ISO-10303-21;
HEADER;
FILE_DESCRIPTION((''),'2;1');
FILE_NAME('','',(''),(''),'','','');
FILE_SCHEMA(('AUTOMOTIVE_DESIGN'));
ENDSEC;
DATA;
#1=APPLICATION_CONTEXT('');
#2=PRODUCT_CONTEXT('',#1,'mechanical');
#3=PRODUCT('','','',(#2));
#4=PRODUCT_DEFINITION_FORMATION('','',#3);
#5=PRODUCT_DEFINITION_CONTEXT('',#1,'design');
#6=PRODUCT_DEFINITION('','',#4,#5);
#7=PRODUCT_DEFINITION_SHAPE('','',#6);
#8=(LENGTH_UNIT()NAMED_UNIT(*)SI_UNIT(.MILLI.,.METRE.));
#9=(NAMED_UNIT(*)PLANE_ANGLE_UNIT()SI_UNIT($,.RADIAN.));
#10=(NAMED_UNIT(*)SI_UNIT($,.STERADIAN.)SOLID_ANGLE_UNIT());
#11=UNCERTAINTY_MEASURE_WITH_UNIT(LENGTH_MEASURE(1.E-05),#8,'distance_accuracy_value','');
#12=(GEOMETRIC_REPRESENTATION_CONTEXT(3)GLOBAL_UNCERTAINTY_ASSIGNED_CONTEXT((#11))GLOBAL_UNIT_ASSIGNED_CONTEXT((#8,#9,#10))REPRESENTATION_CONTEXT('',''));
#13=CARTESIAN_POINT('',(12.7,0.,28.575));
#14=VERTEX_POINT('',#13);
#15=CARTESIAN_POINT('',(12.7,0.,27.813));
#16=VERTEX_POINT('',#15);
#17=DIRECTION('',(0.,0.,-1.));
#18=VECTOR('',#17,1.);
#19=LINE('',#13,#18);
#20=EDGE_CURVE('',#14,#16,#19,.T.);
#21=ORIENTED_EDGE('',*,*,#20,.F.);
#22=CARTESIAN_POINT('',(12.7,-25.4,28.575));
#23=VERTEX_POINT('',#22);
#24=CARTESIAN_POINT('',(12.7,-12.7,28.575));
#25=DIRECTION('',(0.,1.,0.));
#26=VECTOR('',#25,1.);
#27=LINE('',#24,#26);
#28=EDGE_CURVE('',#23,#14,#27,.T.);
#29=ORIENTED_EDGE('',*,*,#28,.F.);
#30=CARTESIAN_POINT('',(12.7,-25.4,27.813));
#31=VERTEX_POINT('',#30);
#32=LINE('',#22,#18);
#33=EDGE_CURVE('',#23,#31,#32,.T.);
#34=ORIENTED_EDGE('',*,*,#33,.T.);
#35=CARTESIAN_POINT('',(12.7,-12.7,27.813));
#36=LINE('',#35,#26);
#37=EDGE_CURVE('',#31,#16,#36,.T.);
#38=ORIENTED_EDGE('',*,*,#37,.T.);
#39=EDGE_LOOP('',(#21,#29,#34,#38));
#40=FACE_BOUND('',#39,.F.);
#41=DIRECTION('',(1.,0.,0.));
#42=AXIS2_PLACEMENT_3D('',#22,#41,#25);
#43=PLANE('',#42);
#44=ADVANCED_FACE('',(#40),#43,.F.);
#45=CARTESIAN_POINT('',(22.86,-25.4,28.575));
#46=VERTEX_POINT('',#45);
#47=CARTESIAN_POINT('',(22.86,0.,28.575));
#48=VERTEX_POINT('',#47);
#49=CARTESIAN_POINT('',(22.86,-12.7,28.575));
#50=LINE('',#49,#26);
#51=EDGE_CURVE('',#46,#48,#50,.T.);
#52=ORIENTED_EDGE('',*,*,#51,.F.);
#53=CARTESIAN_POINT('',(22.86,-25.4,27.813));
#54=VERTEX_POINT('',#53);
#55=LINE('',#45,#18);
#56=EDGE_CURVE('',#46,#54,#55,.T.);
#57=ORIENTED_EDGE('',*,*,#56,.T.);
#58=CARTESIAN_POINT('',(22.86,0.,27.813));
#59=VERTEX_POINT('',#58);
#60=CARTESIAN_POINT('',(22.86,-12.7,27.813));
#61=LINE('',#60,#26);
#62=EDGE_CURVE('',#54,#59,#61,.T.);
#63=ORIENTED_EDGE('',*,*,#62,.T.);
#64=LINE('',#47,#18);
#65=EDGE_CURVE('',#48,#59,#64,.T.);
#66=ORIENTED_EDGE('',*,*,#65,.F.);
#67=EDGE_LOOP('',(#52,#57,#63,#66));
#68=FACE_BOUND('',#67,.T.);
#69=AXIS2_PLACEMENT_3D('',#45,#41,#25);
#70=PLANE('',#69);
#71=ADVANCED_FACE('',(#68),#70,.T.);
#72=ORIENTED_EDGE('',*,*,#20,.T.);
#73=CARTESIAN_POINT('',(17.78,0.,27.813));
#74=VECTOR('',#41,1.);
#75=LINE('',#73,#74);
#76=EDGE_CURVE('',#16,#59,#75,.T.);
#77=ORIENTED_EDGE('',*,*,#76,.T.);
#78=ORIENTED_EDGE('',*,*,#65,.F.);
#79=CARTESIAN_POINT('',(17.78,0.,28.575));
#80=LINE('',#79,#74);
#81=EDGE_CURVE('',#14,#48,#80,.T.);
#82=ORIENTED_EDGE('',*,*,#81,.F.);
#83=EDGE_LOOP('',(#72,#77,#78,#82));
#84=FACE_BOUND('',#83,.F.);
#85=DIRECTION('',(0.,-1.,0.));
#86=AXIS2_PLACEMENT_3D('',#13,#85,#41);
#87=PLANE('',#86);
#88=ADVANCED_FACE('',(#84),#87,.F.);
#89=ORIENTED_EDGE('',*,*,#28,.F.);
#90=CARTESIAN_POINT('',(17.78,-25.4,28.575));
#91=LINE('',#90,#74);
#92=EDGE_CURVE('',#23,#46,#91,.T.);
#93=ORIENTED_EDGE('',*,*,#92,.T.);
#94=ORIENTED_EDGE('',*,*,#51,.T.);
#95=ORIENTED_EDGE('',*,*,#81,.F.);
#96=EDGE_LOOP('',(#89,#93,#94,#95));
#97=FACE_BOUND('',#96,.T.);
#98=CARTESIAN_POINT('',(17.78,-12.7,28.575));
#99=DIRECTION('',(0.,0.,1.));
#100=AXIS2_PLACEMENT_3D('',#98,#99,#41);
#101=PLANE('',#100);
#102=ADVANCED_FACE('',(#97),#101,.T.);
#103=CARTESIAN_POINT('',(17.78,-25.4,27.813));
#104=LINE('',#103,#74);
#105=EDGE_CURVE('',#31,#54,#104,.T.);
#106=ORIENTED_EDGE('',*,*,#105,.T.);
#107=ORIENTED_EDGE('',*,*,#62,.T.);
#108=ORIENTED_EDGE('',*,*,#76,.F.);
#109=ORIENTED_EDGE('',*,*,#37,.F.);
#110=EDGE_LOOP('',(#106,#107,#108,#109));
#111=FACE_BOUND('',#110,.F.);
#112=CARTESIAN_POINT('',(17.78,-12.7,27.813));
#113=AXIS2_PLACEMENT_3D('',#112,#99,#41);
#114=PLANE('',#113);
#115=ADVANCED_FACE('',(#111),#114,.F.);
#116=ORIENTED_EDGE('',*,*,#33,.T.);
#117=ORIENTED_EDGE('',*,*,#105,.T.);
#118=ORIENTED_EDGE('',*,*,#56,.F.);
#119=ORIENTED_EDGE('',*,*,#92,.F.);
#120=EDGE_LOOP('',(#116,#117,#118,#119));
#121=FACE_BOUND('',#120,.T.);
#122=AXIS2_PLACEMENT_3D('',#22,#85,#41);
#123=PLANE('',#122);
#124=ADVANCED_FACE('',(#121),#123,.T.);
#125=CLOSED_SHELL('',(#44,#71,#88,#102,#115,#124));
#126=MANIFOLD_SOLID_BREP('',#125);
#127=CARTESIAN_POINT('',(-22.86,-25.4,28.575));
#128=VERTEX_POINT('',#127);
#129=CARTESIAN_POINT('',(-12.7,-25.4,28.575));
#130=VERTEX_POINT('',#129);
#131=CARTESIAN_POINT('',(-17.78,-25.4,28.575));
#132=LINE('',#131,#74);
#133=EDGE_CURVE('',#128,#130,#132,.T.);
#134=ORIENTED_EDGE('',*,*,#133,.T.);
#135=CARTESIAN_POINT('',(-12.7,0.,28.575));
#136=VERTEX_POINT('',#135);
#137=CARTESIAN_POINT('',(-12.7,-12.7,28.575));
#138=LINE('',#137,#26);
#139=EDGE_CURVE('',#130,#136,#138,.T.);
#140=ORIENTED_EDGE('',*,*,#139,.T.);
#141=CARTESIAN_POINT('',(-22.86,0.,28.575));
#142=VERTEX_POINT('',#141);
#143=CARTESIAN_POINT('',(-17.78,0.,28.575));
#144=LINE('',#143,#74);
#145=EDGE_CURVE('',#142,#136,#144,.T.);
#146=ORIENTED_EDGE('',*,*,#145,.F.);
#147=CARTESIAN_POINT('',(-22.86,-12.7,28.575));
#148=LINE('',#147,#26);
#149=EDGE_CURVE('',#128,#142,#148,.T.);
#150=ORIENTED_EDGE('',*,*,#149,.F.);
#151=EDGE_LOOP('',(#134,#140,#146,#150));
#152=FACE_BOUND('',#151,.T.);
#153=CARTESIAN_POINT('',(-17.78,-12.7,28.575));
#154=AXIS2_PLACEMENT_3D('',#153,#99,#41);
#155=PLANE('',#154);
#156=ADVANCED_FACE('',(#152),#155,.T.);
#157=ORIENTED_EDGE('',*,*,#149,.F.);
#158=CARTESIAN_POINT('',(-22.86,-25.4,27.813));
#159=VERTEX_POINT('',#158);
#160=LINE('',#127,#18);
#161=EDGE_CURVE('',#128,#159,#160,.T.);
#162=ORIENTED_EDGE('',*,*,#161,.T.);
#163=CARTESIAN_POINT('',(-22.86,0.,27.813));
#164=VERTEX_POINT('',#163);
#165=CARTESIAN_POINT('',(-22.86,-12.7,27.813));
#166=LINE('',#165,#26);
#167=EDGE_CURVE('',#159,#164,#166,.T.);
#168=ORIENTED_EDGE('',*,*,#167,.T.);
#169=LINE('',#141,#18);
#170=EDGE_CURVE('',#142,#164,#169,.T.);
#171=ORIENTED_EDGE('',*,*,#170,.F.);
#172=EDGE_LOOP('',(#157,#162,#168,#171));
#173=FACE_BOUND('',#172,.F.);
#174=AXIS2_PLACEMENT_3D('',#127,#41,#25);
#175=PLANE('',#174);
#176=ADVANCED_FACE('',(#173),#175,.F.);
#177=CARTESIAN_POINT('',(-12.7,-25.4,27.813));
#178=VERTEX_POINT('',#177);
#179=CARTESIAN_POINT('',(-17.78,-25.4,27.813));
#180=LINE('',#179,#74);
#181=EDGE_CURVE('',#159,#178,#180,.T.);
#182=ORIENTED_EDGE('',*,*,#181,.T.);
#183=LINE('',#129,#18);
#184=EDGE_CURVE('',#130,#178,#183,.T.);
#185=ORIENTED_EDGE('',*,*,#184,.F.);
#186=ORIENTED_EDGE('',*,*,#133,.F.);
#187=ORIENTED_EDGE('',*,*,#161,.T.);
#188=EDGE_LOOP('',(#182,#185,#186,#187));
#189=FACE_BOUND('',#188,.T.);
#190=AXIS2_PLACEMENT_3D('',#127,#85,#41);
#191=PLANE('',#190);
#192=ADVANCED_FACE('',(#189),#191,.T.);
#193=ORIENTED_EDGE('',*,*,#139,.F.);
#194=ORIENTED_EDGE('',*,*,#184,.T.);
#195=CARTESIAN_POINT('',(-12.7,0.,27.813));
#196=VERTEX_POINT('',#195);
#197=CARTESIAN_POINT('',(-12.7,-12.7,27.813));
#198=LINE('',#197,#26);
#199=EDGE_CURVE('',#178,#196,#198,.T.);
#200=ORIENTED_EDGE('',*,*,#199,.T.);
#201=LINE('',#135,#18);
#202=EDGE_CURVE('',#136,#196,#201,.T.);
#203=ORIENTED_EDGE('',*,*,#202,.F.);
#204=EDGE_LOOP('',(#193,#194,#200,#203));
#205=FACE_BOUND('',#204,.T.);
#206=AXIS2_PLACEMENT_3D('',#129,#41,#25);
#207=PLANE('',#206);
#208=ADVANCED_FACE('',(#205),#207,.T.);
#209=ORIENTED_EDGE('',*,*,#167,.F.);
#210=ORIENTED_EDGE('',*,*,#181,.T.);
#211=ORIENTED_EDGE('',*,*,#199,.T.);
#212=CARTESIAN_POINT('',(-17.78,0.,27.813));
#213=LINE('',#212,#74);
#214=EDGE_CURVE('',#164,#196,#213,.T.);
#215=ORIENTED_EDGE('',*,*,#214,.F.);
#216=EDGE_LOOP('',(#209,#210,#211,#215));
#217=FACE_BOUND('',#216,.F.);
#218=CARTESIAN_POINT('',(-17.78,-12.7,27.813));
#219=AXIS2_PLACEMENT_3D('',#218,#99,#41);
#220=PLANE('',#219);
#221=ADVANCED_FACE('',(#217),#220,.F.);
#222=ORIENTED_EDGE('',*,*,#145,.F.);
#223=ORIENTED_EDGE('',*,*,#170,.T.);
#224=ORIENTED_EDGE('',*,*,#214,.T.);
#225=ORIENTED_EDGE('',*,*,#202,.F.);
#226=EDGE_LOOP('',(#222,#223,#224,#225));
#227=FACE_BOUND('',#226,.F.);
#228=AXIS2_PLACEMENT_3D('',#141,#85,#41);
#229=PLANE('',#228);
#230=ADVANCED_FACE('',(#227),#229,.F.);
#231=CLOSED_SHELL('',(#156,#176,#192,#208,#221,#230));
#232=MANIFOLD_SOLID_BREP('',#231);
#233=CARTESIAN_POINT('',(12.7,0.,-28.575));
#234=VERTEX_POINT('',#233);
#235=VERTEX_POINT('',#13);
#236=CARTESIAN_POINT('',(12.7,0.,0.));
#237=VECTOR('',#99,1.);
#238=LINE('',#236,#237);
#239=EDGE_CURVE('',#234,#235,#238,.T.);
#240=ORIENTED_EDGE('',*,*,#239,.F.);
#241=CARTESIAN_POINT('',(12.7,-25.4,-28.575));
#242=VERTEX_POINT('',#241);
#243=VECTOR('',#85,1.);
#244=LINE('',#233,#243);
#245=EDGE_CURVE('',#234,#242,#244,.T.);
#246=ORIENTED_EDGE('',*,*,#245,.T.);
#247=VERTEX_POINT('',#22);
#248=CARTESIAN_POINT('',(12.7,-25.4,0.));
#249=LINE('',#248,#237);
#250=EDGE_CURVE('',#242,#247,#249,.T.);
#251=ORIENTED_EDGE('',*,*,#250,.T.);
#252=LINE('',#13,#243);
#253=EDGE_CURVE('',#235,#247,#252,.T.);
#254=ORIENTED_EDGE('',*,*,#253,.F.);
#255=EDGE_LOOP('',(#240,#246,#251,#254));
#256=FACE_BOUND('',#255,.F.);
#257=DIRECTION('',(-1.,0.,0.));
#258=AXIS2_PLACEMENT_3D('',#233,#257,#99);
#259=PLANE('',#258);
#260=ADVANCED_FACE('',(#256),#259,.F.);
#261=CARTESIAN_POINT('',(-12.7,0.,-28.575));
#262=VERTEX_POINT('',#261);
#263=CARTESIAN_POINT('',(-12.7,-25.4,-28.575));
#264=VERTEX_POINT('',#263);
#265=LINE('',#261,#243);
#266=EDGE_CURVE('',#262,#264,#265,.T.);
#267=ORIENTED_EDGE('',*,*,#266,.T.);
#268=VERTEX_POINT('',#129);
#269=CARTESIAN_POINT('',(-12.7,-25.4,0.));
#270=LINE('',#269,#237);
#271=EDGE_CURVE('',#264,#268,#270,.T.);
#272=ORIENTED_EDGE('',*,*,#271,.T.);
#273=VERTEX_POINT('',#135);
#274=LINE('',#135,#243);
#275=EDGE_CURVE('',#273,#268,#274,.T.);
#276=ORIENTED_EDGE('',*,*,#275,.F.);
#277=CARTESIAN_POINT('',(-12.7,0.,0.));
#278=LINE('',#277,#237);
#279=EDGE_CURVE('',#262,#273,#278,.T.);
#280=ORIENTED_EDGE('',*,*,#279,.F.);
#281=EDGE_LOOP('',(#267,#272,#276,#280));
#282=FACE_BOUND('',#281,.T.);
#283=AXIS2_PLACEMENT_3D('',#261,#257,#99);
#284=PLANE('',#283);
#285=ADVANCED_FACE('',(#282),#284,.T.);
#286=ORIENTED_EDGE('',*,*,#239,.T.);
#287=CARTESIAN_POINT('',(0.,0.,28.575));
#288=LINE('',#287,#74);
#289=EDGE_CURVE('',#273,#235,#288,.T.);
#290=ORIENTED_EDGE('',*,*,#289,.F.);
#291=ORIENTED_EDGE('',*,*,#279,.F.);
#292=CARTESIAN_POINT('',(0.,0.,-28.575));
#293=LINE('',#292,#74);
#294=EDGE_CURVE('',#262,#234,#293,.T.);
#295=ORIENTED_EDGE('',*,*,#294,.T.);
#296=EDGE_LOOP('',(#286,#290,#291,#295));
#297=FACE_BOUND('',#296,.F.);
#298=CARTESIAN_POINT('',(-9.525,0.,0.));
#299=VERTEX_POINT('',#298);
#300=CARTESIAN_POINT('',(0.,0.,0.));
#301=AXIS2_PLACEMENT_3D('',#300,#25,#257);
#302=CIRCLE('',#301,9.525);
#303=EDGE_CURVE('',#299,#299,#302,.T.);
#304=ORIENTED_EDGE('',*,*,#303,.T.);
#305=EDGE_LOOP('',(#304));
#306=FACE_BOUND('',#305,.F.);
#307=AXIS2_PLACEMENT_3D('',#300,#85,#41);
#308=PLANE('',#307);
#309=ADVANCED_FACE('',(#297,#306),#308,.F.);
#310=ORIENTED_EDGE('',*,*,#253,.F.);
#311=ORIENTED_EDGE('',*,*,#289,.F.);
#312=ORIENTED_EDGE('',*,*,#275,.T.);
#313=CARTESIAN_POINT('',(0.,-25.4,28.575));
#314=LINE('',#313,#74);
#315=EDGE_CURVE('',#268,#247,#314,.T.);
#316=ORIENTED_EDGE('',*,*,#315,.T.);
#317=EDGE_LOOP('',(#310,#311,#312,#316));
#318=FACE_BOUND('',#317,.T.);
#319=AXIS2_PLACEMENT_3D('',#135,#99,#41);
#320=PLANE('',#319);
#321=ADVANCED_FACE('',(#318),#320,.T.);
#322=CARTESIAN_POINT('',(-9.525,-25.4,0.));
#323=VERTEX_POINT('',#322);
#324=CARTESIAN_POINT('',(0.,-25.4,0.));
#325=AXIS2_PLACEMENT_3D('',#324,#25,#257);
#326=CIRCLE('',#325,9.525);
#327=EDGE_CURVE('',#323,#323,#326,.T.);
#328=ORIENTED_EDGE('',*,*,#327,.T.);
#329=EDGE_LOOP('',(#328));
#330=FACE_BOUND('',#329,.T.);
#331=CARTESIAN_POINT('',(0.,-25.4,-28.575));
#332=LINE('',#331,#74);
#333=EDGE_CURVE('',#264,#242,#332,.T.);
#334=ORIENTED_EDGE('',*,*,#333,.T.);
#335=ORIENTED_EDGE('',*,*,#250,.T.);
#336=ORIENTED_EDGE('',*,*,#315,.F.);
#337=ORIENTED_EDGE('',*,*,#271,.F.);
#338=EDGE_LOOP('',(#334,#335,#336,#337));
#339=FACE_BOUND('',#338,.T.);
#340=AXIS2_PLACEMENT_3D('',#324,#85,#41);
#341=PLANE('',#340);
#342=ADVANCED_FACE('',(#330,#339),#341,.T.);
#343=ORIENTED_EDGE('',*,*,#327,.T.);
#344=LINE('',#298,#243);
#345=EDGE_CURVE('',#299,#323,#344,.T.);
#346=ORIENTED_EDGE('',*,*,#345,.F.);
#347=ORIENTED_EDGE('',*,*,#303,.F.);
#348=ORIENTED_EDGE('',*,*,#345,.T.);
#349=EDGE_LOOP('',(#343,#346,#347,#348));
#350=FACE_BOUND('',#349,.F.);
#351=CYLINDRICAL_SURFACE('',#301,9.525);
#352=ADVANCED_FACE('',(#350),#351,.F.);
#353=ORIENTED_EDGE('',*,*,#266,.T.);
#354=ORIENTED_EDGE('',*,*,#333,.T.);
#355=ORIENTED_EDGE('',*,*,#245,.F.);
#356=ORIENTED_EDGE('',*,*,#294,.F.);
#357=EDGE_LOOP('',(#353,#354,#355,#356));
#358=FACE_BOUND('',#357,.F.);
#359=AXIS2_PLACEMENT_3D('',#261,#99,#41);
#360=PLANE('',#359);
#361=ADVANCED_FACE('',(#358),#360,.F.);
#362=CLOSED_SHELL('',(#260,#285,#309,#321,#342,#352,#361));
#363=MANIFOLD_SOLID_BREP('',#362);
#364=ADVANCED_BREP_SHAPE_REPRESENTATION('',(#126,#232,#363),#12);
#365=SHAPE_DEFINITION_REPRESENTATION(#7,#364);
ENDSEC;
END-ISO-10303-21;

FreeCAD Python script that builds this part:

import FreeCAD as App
import Part
import Sketcher
from FreeCAD import Vector
Q = App.Units.Quantity

doc = App.newDocument("Part")
body = doc.addObject("PartDesign::Body", "Body")

# Sketch on XZ plane
sketch1 = doc.addObject("Sketcher::SketchObject", "Sketch")
body.addObject(sketch1)
sketch1.AttachmentSupport = (doc.XZ_Plane, [""])
sketch1.MapMode = "FlatFace"
sketch1.addGeometry([
    Part.LineSegment(Vector(-12.7, 28.575, 0), Vector(-12.7, -28.575, 0)),
    Part.LineSegment(Vector(-12.7, -28.575, 0), Vector(12.7, -28.575, 0)),
    Part.LineSegment(Vector(12.7, -28.575, 0), Vector(12.7, 28.575, 0)),
    Part.LineSegment(Vector(12.7, 28.575, 0), Vector(-12.7, 28.575, 0)),
], False)
sketch1.addConstraint([
    Sketcher.Constraint("Coincident", 0, 2, 1, 1),
    Sketcher.Constraint("Coincident", 1, 2, 2, 1),
    Sketcher.Constraint("Coincident", 2, 2, 3, 1),
    Sketcher.Constraint("Coincident", 3, 2, 0, 1),
    Sketcher.Constraint("Vertical", 0),
    Sketcher.Constraint("Horizontal", 1),
    Sketcher.Constraint("Vertical", 2),
    Sketcher.Constraint("Horizontal", 3),
    Sketcher.Constraint("Symmetric", 0, 2, 2, 2, -1, 1),
    Sketcher.Constraint("DistanceX", 1, 1, 1, 2, Q("1 in")),
    Sketcher.Constraint("DistanceY", 0, 2, 0, 1, Q("2.25 in")),
])
pad1 = doc.addObject("PartDesign::Pad", "Pad")
body.addObject(pad1)
pad1.Profile = sketch1
pad1.Length = Q("1 in")

# Sketch on XZ plane
sketch2 = doc.addObject("Sketcher::SketchObject", "Sketch001")
body.addObject(sketch2)
sketch2.AttachmentSupport = (doc.XZ_Plane, [""])
sketch2.MapMode = "FlatFace"
sketch2.addGeometry(Part.Circle(Vector(0, 0, 0), Vector(0, 0, 1), 9.525), False)
sketch2.addConstraint([
    Sketcher.Constraint("Coincident", 0, 3, -1, 1),
    Sketcher.Constraint("Diameter", 0, Q("0.75 in")),
])
pocket1 = doc.addObject("PartDesign::Pocket", "Pocket")
body.addObject(pocket1)
pocket1.Profile = sketch2
pocket1.Length = Q("1 in")
pocket1.Reversed = True
body2 = doc.addObject("PartDesign::Body", "Body001")
body2.AllowCompound = True

# Sketch on XY plane
sketch3 = doc.addObject("Sketcher::SketchObject", "Sketch002")
body2.addObject(sketch3)
sketch3.AttachmentSupport = (doc.getObject("XY_Plane001"), [""])
sketch3.MapMode = "FlatFace"
sketch3.AttachmentOffset = App.Placement(Vector(0, 0, 1.125 * 25.4), App.Rotation())
sketch3.addGeometry([
    Part.LineSegment(Vector(-22.86, 0, 0), Vector(-22.86, -25.4, 0)),  # 0
    Part.LineSegment(Vector(-22.86, -25.4, 0), Vector(-12.7, -25.4, 0)),  # 1
    Part.LineSegment(Vector(-12.7, -25.4, 0), Vector(-12.7, 0, 0)),  # 2
    Part.LineSegment(Vector(-12.7, 0, 0), Vector(-22.86, 0, 0)),  # 3
    Part.LineSegment(Vector(12.7, 0, 0), Vector(12.7, -25.4, 0)),  # 4
    Part.LineSegment(Vector(12.7, -25.4, 0), Vector(22.86, -25.4, 0)),  # 5
    Part.LineSegment(Vector(22.86, -25.4, 0), Vector(22.86, 0, 0)),  # 6
    Part.LineSegment(Vector(22.86, 0, 0), Vector(12.7, 0, 0)),  # 7
], False)
sketch3.addConstraint([
    Sketcher.Constraint("Coincident", 0, 2, 1, 1),
    Sketcher.Constraint("Coincident", 1, 2, 2, 1),
    Sketcher.Constraint("Coincident", 2, 2, 3, 1),
    Sketcher.Constraint("Coincident", 3, 2, 0, 1),
    Sketcher.Constraint("Coincident", 4, 2, 5, 1),
    Sketcher.Constraint("Coincident", 5, 2, 6, 1),
    Sketcher.Constraint("Coincident", 6, 2, 7, 1),
    Sketcher.Constraint("Coincident", 7, 2, 4, 1),
    Sketcher.Constraint("Vertical", 0),
    Sketcher.Constraint("Horizontal", 1),
    Sketcher.Constraint("Vertical", 2),
    Sketcher.Constraint("Horizontal", 3),
    Sketcher.Constraint("Vertical", 4),
    Sketcher.Constraint("Horizontal", 5),
    Sketcher.Constraint("Vertical", 6),
    Sketcher.Constraint("Horizontal", 7),
    Sketcher.Constraint("Symmetric", 3, 2, 6, 2, -1, 1),
    Sketcher.Constraint("Symmetric", 1, 2, 4, 2, -2),
    Sketcher.Constraint("PointOnObject", 2, 2, -1),
    Sketcher.Constraint("DistanceY", 0, 2, 0, 1, Q("1 in")),
    Sketcher.Constraint("DistanceX", 1, 1, 1, 2, Q("0.4 in")),
    Sketcher.Constraint("DistanceX", 1, 2, 4, 2, Q("1 in")),
])
pad2 = doc.addObject("PartDesign::Pad", "Pad001")
body2.addObject(pad2)
pad2.Profile = sketch3
pad2.Length = Q("0.03 in")
pad2.Reversed = True

doc.recompute()
